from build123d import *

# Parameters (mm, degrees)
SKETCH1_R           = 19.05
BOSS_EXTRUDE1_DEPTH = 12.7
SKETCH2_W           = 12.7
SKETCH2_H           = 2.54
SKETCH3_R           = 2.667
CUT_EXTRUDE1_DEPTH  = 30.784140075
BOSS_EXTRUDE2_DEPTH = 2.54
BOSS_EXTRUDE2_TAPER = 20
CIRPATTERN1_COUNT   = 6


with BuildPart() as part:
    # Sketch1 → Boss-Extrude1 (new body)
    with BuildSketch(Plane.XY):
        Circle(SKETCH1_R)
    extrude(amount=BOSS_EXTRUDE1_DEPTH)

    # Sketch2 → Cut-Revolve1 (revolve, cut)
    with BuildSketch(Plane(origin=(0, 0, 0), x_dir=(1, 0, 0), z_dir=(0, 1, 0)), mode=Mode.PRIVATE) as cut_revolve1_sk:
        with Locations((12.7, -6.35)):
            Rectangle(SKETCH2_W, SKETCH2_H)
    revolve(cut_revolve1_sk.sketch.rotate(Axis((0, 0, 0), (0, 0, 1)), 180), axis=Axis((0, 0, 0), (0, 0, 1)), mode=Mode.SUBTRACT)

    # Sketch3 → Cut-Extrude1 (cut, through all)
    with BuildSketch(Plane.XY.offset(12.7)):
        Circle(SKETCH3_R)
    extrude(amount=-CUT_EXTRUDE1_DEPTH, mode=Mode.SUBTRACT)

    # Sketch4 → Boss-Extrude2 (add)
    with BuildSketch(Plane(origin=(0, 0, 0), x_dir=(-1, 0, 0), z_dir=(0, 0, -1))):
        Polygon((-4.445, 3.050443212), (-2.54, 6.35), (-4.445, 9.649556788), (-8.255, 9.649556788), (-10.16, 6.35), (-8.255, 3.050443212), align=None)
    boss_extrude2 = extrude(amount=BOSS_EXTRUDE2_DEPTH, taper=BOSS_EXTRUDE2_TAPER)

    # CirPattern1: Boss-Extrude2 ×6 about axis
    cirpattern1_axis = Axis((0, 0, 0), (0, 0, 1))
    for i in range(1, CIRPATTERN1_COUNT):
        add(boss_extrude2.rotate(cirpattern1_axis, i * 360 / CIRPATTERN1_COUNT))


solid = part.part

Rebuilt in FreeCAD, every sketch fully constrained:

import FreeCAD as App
import Part
import Sketcher

V = App.Vector
Q = App.Units.Quantity

doc = App.newDocument("Part")
body = doc.addObject("PartDesign::Body", "Body")

sketch1 = doc.addObject("Sketcher::SketchObject", "Sketch")
body.addObject(sketch1)
sketch1.AttachmentSupport = (doc.XY_Plane, [""])
sketch1.MapMode = "FlatFace"
sketch1.addGeometry(Part.Circle(V(0, 0, 0), V(0, 0, 1), 19), False)
sketch1.addConstraint([
    Sketcher.Constraint("Coincident", 0, 3, -1, 1),
    Sketcher.Constraint("Diameter", 0, Q("1.5 in")),
])
pad1 = doc.addObject("PartDesign::Pad", "Pad")
body.addObject(pad1)
pad1.Profile = sketch1
pad1.Length = Q("0.5 in")

sketch2 = doc.addObject("Sketcher::SketchObject", "Sketch001")
body.addObject(sketch2)
sketch2.AttachmentSupport = (doc.XZ_Plane, [""])
sketch2.MapMode = "FlatFace"
sketch2.addGeometry([
    Part.LineSegment(V(6.3, 5.1, 0), V(6.3, 7.6, 0)),
    Part.LineSegment(V(6.3, 7.6, 0), V(19.1, 7.6, 0)),
    Part.LineSegment(V(19.1, 7.6, 0), V(19.1, 5.1, 0)),
    Part.LineSegment(V(19.1, 5.1, 0), V(6.3, 5.1, 0)),
], False)
sketch2.addConstraint([
    Sketcher.Constraint("Coincident", 0, 2, 1, 1),
    Sketcher.Constraint("Coincident", 1, 2, 2, 1),
    Sketcher.Constraint("Coincident", 2, 2, 3, 1),
    Sketcher.Constraint("Coincident", 3, 2, 0, 1),
    Sketcher.Constraint("Vertical", 0),
    Sketcher.Constraint("Horizontal", 1),
    Sketcher.Constraint("Vertical", 2),
    Sketcher.Constraint("Horizontal", 3),
    Sketcher.Constraint("DistanceX", 1, 1, 1, 2, Q("0.5 in")),
    Sketcher.Constraint("DistanceY", 0, 1, 0, 2, Q("0.1 in")),
    Sketcher.Constraint("DistanceY", -1, 1, 0, 2, Q("0.3 in")),
    Sketcher.Constraint("DistanceX", -1, 1, 0, 2, Q("0.25 in")),
])
groove = doc.addObject("PartDesign::Groove", "Groove")
body.addObject(groove)
groove.Profile = sketch2
groove.ReferenceAxis = (sketch2, ["V_Axis"])
groove.Angle = 360

sketch3 = doc.addObject("Sketcher::SketchObject", "Sketch002")
body.addObject(sketch3)
sketch3.AttachmentSupport = (doc.XY_Plane, [""])
sketch3.MapMode = "FlatFace"
sketch3.AttachmentOffset = App.Placement(V(0, 0, 0.5 * 25.4), App.Rotation())
sketch3.addGeometry(Part.Circle(V(0, 0, 0), V(0, 0, 1), 2.7), False)
sketch3.addConstraint([
    Sketcher.Constraint("Coincident", 0, 3, -1, 1),
    Sketcher.Constraint("Diameter", 0, Q("0.21 in")),
])
pocket1 = doc.addObject("PartDesign::Pocket", "Pocket")
body.addObject(pocket1)
pocket1.Profile = sketch3
pocket1.Type = "ThroughAll"

sketch4 = doc.addObject("Sketcher::SketchObject", "Sketch003")
body.addObject(sketch4)
sketch4.AttachmentSupport = (doc.XY_Plane, [""])
sketch4.MapMode = "FlatFace"
sketch4.addGeometry([
    Part.LineSegment(V(4.4, 3.1, 0), V(2.5, 6.3, 0)),
    Part.LineSegment(V(2.5, 6.3, 0), V(4.4, 9.6, 0)),
    Part.LineSegment(V(4.4, 9.6, 0), V(8.3, 9.6, 0)),
    Part.LineSegment(V(8.3, 9.6, 0), V(10.2, 6.3, 0)),
    Part.LineSegment(V(10.2, 6.3, 0), V(8.3, 3.1, 0)),
    Part.LineSegment(V(8.3, 3.1, 0), V(4.4, 3.1, 0)),
], False)
sketch4.addConstraint([
    Sketcher.Constraint("Coincident", 0, 2, 1, 1),
    Sketcher.Constraint("Coincident", 1, 2, 2, 1),
    Sketcher.Constraint("Coincident", 2, 2, 3, 1),
    Sketcher.Constraint("Coincident", 3, 2, 4, 1),
    Sketcher.Constraint("Coincident", 4, 2, 5, 1),
    Sketcher.Constraint("Coincident", 5, 2, 0, 1),
    Sketcher.Constraint("Horizontal", 2),
    Sketcher.Constraint("Horizontal", 5),
    Sketcher.Constraint("Parallel", 0, 3),
    Sketcher.Constraint("Parallel", 1, 4),
    Sketcher.Constraint("Horizontal", 0, 2, 3, 2),
    Sketcher.Constraint("Vertical", 2, 2, 4, 2),
    Sketcher.Constraint("Vertical", 1, 2, 5, 2),
    Sketcher.Constraint("Angle", 0, Q("120 deg")),
    Sketcher.Constraint("DistanceX", 2, 1, 2, 2, Q("0.15 in")),
    Sketcher.Constraint("DistanceX", -1, 1, 0, 2, Q("0.1 in")),
    Sketcher.Constraint("DistanceX", -1, 1, 3, 2, Q("0.4 in")),
    Sketcher.Constraint("DistanceY", -1, 1, 0, 2, Q("0.25 in")),
])
pad2 = doc.addObject("PartDesign::Pad", "Pad001")
body.addObject(pad2)
pad2.Profile = sketch4
pad2.Length = Q("0.1 in")
pad2.Reversed = True
pad2.TaperAngle = -20
doc.recompute()

polarpattern = doc.addObject("PartDesign::PolarPattern", "PolarPattern")
body.addObject(polarpattern)
polarpattern.Originals = [pad2]
polarpattern.Axis = (doc.Z_Axis, [""])
polarpattern.Angle = 360
polarpattern.Occurrences = 6
body.Tip = polarpattern

doc.recompute()
